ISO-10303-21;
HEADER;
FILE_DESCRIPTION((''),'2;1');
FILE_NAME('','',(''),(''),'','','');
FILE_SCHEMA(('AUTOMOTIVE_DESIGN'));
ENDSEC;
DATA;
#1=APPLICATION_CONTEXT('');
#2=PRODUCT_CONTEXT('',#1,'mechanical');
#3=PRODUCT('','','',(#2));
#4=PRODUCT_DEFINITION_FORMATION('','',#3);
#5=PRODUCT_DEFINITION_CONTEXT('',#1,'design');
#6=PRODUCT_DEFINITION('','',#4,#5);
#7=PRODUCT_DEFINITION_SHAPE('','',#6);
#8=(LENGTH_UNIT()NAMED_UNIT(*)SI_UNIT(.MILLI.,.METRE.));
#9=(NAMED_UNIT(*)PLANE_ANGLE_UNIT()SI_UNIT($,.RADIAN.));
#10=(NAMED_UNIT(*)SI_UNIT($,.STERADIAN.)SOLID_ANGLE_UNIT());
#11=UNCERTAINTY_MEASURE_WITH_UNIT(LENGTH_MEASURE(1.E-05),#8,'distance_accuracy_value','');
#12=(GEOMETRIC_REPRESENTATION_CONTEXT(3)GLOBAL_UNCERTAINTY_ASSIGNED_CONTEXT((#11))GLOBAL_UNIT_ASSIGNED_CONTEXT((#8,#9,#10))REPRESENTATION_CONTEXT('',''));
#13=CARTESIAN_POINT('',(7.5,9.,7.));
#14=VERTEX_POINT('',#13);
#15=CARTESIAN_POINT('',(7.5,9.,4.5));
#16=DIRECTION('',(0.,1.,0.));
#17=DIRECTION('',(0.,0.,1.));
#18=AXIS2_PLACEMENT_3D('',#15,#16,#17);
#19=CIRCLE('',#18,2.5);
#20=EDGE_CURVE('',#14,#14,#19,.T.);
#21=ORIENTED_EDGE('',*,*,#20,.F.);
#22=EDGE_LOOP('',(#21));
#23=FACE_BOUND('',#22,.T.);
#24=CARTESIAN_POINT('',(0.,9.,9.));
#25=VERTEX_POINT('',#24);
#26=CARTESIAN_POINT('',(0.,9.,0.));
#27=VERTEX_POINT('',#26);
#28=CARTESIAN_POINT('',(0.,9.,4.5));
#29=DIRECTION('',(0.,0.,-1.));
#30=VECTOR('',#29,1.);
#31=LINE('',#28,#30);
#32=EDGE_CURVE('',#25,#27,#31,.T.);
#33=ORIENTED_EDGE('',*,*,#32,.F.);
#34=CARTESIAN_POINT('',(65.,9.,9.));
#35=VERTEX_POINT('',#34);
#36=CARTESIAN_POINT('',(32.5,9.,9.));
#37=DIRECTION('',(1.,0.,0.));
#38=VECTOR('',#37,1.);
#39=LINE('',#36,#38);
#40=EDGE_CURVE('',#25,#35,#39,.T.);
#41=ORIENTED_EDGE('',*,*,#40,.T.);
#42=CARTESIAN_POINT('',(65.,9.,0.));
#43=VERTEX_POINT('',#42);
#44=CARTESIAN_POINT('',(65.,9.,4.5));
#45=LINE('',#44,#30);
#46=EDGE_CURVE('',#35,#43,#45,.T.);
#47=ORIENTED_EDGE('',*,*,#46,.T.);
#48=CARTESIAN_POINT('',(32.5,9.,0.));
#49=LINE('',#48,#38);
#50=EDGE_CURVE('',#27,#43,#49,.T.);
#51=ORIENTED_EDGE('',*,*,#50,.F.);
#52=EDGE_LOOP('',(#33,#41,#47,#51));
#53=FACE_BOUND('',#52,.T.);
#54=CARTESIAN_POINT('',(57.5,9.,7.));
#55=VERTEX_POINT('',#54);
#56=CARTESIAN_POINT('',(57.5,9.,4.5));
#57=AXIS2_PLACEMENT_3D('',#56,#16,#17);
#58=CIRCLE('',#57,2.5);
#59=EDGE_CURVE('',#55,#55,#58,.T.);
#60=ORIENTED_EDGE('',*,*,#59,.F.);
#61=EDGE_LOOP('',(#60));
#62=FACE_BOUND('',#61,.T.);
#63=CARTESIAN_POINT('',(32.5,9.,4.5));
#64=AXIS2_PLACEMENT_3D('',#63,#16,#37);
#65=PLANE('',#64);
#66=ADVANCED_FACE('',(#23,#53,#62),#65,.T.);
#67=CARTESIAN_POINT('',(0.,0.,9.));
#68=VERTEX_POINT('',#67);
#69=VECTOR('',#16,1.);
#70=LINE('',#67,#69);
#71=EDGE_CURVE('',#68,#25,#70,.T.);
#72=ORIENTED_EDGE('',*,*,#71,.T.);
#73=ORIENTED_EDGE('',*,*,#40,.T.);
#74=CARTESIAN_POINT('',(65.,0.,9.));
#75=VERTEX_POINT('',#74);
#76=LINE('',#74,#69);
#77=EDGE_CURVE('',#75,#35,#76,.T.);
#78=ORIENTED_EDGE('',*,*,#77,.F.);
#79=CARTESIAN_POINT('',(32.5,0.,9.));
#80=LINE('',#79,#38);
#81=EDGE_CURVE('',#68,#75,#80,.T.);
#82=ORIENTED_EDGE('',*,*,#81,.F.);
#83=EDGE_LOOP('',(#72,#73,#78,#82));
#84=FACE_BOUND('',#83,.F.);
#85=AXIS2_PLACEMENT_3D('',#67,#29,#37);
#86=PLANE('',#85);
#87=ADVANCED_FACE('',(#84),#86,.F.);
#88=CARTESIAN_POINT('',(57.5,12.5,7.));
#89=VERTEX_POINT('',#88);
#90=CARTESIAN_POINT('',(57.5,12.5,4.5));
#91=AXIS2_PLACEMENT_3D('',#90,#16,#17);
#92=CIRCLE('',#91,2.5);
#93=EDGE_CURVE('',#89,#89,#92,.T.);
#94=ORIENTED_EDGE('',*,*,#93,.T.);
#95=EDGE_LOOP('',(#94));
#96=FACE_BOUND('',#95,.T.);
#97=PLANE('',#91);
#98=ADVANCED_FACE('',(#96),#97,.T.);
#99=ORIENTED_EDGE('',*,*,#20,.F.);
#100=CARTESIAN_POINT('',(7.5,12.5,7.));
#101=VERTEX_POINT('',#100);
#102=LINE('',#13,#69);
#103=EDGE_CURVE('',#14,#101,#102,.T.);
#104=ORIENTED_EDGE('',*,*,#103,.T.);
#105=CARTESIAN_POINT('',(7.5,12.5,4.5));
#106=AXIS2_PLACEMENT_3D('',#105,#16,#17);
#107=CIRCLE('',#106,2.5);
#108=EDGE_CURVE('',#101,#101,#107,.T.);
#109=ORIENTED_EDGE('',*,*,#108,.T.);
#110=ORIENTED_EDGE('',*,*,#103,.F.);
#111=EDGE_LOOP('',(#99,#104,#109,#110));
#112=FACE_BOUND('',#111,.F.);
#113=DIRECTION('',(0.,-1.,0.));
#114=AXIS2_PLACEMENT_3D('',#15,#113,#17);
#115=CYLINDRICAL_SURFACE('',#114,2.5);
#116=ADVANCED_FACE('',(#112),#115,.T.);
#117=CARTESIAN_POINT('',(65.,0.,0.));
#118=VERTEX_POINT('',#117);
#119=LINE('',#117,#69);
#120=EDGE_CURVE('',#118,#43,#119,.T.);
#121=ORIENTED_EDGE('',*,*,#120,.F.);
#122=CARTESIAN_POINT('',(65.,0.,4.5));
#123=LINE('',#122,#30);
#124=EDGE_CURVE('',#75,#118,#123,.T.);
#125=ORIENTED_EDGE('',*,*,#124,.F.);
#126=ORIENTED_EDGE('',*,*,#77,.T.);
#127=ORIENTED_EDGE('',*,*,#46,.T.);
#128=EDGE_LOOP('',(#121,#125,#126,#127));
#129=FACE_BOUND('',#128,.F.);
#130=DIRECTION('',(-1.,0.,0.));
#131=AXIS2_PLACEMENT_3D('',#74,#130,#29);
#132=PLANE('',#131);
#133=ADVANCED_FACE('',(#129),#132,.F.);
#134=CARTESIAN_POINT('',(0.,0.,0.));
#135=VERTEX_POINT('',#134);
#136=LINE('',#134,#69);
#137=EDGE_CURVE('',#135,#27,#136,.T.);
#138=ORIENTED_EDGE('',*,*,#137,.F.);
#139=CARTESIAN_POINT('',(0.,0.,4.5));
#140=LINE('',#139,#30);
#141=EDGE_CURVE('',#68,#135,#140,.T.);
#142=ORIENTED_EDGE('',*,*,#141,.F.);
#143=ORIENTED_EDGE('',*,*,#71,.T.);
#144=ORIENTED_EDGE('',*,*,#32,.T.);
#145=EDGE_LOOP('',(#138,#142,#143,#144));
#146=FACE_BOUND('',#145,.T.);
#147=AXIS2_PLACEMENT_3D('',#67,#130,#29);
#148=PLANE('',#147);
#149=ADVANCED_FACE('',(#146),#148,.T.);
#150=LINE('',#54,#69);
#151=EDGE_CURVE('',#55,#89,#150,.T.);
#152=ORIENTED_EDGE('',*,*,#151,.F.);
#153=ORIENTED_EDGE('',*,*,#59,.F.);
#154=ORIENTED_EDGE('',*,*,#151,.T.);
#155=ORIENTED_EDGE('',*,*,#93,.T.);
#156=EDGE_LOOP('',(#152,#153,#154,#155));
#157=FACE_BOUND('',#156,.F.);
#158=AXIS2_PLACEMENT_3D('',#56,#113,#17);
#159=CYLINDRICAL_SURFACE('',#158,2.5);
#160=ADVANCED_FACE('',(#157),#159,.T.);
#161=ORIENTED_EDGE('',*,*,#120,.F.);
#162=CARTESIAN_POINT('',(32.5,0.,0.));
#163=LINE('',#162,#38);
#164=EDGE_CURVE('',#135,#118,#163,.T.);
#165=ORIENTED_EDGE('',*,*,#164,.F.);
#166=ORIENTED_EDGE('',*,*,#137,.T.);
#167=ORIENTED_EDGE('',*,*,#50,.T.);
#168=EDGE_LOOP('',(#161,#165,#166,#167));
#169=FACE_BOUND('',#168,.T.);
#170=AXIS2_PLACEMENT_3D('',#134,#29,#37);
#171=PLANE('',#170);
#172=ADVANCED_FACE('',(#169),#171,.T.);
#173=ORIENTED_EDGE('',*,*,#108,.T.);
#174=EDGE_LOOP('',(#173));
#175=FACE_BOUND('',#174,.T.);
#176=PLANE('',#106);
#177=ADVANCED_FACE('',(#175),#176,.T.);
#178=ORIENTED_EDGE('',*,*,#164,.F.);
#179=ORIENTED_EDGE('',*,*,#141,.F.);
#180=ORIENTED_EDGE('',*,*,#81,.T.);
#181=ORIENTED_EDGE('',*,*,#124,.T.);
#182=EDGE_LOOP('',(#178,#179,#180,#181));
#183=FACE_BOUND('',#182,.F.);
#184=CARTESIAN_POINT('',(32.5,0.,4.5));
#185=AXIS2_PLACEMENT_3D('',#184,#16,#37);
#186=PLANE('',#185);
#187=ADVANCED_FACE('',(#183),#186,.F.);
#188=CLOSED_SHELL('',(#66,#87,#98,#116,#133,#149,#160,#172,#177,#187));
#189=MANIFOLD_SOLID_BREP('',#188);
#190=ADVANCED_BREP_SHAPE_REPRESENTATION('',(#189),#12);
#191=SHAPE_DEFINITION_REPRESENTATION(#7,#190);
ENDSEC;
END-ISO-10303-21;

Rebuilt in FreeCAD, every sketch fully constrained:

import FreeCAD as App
import Part
import Sketcher
from FreeCAD import Vector
Q = App.Units.Quantity

doc = App.newDocument("Part")
params = doc.addObject("Spreadsheet::Sheet", "Params")
for row, (alias, value) in enumerate([
    ("sketch1_width", "65 mm"),
    ("sketch1_height", "9 mm"),
    ("pad1_length", "9 mm"),
    ("sketch2_diameter", "5 mm"),
    ("pad2_length", "3.5 mm"),
], start=1):
    params.set(f"A{row}", alias)
    params.set(f"B{row}", "=" + value)
    params.setAlias(f"B{row}", alias)

body = doc.addObject("PartDesign::Body", "Body")

sketch1 = body.newObject("Sketcher::SketchObject", "Sketch")
sketch1.AttachmentSupport = (doc.getObject("XZ_Plane"), [""])
sketch1.MapMode = "FlatFace"
sketch1.addGeometry([
    Part.LineSegment(Vector(0, 0, 0), Vector(0, 9, 0)),
    Part.LineSegment(Vector(0, 9, 0), Vector(65, 9, 0)),
    Part.LineSegment(Vector(65, 9, 0), Vector(65, 0, 0)),
    Part.LineSegment(Vector(65, 0, 0), Vector(0, 0, 0)),
], False)
sketch1.addConstraint([
    Sketcher.Constraint("Coincident", 0, 2, 1, 1),
    Sketcher.Constraint("Coincident", 1, 2, 2, 1),
    Sketcher.Constraint("Coincident", 2, 2, 3, 1),
    Sketcher.Constraint("Coincident", 3, 2, 0, 1),
    Sketcher.Constraint("Vertical", 0),
    Sketcher.Constraint("Horizontal", 1),
    Sketcher.Constraint("Vertical", 2),
    Sketcher.Constraint("Horizontal", 3),
    Sketcher.Constraint("Coincident", 3, 2, -1, 1),
    Sketcher.Constraint("DistanceX", 1, 1, 1, 2, Q("65 mm")),
    Sketcher.Constraint("DistanceY", 0, 1, 0, 2, Q("9 mm")),
])
sketch1.setExpression("Constraints[9]", "Params.sketch1_width")
sketch1.setExpression("Constraints[10]", "Params.sketch1_height")
pad1 = body.newObject("PartDesign::Pad", "Pad")
pad1.Profile = sketch1
pad1.setExpression("Length", "Params.pad1_length")
pad1.Reversed = True

sketch2 = body.newObject("Sketcher::SketchObject", "Sketch001")
sketch2.AttachmentSupport = (doc.getObject("XZ_Plane"), [""])
sketch2.MapMode = "FlatFace"
sketch2.AttachmentOffset = App.Placement(Vector(0, 0, -9), App.Rotation())
sketch2.addGeometry([
    Part.Circle(Vector(7.5, 4.5, 0), Vector(0, 0, 1), 2.5),
    Part.Circle(Vector(57.5, 4.5, 0), Vector(0, 0, 1), 2.5),
], False)
sketch2.addConstraint([
    Sketcher.Constraint("Equal", 0, 1),
    Sketcher.Constraint("Horizontal", 0, 3, 1, 3),
    Sketcher.Constraint("Diameter", 0, Q("5 mm")),
    Sketcher.Constraint("DistanceX", 0, 3, 1, 3, Q("50 mm")),
    Sketcher.Constraint("DistanceX", -1, 1, 0, 3, Q("7.5 mm")),
    Sketcher.Constraint("DistanceY", -1, 1, 0, 3, Q("4.5 mm")),
])
sketch2.setExpression("Constraints[2]", "Params.sketch2_diameter")
pad2 = body.newObject("PartDesign::Pad", "Pad001")
pad2.Profile = sketch2
pad2.setExpression("Length", "Params.pad2_length")
pad2.Reversed = True

doc.recompute()
